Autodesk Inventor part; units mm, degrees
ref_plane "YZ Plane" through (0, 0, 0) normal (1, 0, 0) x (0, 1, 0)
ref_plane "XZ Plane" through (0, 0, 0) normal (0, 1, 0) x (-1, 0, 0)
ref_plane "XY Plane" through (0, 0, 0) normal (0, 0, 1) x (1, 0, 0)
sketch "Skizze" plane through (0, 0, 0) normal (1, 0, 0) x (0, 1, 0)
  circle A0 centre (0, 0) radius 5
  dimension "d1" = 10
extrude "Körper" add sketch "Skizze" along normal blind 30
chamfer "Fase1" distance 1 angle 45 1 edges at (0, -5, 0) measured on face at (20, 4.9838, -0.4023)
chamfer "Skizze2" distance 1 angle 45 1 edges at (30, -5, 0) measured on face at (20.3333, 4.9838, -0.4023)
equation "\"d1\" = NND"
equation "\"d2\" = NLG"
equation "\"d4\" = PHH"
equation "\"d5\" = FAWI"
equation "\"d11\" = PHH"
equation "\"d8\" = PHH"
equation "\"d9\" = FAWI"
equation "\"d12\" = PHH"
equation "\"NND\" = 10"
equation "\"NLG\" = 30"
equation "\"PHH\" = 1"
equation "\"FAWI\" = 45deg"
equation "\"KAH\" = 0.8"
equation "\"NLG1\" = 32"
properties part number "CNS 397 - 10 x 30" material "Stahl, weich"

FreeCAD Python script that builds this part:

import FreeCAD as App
import Part
import Sketcher
from FreeCAD import Vector


def edges_at(feature, points):
    """Names of the edges that pass closest to the given points."""
    edges = feature.Shape.Edges
    near = lambda p: min(range(len(edges)), key=lambda i: edges[i].distToShape(Part.Vertex(*p))[0])
    return sorted({f"Edge{near(p) + 1}" for p in points})

doc = App.newDocument("Part")
params = doc.addObject("Spreadsheet::Sheet", "Params")
for row, (alias, value) in enumerate([
    ("sketch1_diameter", "10 mm"),
    ("pad1_length", "30 mm"),
    ("chamfer_size", "1 mm"),
    ("chamfer2_size", "1 mm"),
], start=1):
    params.set(f"A{row}", alias)
    params.set(f"B{row}", "=" + value)
    params.setAlias(f"B{row}", alias)

body = doc.addObject("PartDesign::Body", "Body")

sketch1 = body.newObject("Sketcher::SketchObject", "Sketch")
sketch1.AttachmentSupport = (doc.getObject("YZ_Plane"), [""])
sketch1.MapMode = "FlatFace"
sketch1.addGeometry(Part.Circle(Vector(0, 0, 0), Vector(0, 0, 1), 5), False)
sketch1.addConstraint(Sketcher.Constraint("Coincident", 0, 3, -1, 1))
sketch1.addConstraint(Sketcher.Constraint("Diameter", 0, 10.0))
sketch1.setExpression("Constraints[1]", "Params.sketch1_diameter")
pad1 = body.newObject("PartDesign::Pad", "Pad")
pad1.Profile = sketch1
pad1.setExpression("Length", "Params.pad1_length")
doc.recompute()

chamfer = body.newObject("PartDesign::Chamfer", "Chamfer")
chamfer.Base = (pad1, edges_at(pad1, [(0, -5, 0)]))
chamfer.setExpression("Size", "Params.chamfer_size")
doc.recompute()

chamfer2 = body.newObject("PartDesign::Chamfer", "Chamfer001")
chamfer2.Base = (chamfer, edges_at(chamfer, [(30, -5, 0)]))
chamfer2.setExpression("Size", "Params.chamfer2_size")

doc.recompute()
